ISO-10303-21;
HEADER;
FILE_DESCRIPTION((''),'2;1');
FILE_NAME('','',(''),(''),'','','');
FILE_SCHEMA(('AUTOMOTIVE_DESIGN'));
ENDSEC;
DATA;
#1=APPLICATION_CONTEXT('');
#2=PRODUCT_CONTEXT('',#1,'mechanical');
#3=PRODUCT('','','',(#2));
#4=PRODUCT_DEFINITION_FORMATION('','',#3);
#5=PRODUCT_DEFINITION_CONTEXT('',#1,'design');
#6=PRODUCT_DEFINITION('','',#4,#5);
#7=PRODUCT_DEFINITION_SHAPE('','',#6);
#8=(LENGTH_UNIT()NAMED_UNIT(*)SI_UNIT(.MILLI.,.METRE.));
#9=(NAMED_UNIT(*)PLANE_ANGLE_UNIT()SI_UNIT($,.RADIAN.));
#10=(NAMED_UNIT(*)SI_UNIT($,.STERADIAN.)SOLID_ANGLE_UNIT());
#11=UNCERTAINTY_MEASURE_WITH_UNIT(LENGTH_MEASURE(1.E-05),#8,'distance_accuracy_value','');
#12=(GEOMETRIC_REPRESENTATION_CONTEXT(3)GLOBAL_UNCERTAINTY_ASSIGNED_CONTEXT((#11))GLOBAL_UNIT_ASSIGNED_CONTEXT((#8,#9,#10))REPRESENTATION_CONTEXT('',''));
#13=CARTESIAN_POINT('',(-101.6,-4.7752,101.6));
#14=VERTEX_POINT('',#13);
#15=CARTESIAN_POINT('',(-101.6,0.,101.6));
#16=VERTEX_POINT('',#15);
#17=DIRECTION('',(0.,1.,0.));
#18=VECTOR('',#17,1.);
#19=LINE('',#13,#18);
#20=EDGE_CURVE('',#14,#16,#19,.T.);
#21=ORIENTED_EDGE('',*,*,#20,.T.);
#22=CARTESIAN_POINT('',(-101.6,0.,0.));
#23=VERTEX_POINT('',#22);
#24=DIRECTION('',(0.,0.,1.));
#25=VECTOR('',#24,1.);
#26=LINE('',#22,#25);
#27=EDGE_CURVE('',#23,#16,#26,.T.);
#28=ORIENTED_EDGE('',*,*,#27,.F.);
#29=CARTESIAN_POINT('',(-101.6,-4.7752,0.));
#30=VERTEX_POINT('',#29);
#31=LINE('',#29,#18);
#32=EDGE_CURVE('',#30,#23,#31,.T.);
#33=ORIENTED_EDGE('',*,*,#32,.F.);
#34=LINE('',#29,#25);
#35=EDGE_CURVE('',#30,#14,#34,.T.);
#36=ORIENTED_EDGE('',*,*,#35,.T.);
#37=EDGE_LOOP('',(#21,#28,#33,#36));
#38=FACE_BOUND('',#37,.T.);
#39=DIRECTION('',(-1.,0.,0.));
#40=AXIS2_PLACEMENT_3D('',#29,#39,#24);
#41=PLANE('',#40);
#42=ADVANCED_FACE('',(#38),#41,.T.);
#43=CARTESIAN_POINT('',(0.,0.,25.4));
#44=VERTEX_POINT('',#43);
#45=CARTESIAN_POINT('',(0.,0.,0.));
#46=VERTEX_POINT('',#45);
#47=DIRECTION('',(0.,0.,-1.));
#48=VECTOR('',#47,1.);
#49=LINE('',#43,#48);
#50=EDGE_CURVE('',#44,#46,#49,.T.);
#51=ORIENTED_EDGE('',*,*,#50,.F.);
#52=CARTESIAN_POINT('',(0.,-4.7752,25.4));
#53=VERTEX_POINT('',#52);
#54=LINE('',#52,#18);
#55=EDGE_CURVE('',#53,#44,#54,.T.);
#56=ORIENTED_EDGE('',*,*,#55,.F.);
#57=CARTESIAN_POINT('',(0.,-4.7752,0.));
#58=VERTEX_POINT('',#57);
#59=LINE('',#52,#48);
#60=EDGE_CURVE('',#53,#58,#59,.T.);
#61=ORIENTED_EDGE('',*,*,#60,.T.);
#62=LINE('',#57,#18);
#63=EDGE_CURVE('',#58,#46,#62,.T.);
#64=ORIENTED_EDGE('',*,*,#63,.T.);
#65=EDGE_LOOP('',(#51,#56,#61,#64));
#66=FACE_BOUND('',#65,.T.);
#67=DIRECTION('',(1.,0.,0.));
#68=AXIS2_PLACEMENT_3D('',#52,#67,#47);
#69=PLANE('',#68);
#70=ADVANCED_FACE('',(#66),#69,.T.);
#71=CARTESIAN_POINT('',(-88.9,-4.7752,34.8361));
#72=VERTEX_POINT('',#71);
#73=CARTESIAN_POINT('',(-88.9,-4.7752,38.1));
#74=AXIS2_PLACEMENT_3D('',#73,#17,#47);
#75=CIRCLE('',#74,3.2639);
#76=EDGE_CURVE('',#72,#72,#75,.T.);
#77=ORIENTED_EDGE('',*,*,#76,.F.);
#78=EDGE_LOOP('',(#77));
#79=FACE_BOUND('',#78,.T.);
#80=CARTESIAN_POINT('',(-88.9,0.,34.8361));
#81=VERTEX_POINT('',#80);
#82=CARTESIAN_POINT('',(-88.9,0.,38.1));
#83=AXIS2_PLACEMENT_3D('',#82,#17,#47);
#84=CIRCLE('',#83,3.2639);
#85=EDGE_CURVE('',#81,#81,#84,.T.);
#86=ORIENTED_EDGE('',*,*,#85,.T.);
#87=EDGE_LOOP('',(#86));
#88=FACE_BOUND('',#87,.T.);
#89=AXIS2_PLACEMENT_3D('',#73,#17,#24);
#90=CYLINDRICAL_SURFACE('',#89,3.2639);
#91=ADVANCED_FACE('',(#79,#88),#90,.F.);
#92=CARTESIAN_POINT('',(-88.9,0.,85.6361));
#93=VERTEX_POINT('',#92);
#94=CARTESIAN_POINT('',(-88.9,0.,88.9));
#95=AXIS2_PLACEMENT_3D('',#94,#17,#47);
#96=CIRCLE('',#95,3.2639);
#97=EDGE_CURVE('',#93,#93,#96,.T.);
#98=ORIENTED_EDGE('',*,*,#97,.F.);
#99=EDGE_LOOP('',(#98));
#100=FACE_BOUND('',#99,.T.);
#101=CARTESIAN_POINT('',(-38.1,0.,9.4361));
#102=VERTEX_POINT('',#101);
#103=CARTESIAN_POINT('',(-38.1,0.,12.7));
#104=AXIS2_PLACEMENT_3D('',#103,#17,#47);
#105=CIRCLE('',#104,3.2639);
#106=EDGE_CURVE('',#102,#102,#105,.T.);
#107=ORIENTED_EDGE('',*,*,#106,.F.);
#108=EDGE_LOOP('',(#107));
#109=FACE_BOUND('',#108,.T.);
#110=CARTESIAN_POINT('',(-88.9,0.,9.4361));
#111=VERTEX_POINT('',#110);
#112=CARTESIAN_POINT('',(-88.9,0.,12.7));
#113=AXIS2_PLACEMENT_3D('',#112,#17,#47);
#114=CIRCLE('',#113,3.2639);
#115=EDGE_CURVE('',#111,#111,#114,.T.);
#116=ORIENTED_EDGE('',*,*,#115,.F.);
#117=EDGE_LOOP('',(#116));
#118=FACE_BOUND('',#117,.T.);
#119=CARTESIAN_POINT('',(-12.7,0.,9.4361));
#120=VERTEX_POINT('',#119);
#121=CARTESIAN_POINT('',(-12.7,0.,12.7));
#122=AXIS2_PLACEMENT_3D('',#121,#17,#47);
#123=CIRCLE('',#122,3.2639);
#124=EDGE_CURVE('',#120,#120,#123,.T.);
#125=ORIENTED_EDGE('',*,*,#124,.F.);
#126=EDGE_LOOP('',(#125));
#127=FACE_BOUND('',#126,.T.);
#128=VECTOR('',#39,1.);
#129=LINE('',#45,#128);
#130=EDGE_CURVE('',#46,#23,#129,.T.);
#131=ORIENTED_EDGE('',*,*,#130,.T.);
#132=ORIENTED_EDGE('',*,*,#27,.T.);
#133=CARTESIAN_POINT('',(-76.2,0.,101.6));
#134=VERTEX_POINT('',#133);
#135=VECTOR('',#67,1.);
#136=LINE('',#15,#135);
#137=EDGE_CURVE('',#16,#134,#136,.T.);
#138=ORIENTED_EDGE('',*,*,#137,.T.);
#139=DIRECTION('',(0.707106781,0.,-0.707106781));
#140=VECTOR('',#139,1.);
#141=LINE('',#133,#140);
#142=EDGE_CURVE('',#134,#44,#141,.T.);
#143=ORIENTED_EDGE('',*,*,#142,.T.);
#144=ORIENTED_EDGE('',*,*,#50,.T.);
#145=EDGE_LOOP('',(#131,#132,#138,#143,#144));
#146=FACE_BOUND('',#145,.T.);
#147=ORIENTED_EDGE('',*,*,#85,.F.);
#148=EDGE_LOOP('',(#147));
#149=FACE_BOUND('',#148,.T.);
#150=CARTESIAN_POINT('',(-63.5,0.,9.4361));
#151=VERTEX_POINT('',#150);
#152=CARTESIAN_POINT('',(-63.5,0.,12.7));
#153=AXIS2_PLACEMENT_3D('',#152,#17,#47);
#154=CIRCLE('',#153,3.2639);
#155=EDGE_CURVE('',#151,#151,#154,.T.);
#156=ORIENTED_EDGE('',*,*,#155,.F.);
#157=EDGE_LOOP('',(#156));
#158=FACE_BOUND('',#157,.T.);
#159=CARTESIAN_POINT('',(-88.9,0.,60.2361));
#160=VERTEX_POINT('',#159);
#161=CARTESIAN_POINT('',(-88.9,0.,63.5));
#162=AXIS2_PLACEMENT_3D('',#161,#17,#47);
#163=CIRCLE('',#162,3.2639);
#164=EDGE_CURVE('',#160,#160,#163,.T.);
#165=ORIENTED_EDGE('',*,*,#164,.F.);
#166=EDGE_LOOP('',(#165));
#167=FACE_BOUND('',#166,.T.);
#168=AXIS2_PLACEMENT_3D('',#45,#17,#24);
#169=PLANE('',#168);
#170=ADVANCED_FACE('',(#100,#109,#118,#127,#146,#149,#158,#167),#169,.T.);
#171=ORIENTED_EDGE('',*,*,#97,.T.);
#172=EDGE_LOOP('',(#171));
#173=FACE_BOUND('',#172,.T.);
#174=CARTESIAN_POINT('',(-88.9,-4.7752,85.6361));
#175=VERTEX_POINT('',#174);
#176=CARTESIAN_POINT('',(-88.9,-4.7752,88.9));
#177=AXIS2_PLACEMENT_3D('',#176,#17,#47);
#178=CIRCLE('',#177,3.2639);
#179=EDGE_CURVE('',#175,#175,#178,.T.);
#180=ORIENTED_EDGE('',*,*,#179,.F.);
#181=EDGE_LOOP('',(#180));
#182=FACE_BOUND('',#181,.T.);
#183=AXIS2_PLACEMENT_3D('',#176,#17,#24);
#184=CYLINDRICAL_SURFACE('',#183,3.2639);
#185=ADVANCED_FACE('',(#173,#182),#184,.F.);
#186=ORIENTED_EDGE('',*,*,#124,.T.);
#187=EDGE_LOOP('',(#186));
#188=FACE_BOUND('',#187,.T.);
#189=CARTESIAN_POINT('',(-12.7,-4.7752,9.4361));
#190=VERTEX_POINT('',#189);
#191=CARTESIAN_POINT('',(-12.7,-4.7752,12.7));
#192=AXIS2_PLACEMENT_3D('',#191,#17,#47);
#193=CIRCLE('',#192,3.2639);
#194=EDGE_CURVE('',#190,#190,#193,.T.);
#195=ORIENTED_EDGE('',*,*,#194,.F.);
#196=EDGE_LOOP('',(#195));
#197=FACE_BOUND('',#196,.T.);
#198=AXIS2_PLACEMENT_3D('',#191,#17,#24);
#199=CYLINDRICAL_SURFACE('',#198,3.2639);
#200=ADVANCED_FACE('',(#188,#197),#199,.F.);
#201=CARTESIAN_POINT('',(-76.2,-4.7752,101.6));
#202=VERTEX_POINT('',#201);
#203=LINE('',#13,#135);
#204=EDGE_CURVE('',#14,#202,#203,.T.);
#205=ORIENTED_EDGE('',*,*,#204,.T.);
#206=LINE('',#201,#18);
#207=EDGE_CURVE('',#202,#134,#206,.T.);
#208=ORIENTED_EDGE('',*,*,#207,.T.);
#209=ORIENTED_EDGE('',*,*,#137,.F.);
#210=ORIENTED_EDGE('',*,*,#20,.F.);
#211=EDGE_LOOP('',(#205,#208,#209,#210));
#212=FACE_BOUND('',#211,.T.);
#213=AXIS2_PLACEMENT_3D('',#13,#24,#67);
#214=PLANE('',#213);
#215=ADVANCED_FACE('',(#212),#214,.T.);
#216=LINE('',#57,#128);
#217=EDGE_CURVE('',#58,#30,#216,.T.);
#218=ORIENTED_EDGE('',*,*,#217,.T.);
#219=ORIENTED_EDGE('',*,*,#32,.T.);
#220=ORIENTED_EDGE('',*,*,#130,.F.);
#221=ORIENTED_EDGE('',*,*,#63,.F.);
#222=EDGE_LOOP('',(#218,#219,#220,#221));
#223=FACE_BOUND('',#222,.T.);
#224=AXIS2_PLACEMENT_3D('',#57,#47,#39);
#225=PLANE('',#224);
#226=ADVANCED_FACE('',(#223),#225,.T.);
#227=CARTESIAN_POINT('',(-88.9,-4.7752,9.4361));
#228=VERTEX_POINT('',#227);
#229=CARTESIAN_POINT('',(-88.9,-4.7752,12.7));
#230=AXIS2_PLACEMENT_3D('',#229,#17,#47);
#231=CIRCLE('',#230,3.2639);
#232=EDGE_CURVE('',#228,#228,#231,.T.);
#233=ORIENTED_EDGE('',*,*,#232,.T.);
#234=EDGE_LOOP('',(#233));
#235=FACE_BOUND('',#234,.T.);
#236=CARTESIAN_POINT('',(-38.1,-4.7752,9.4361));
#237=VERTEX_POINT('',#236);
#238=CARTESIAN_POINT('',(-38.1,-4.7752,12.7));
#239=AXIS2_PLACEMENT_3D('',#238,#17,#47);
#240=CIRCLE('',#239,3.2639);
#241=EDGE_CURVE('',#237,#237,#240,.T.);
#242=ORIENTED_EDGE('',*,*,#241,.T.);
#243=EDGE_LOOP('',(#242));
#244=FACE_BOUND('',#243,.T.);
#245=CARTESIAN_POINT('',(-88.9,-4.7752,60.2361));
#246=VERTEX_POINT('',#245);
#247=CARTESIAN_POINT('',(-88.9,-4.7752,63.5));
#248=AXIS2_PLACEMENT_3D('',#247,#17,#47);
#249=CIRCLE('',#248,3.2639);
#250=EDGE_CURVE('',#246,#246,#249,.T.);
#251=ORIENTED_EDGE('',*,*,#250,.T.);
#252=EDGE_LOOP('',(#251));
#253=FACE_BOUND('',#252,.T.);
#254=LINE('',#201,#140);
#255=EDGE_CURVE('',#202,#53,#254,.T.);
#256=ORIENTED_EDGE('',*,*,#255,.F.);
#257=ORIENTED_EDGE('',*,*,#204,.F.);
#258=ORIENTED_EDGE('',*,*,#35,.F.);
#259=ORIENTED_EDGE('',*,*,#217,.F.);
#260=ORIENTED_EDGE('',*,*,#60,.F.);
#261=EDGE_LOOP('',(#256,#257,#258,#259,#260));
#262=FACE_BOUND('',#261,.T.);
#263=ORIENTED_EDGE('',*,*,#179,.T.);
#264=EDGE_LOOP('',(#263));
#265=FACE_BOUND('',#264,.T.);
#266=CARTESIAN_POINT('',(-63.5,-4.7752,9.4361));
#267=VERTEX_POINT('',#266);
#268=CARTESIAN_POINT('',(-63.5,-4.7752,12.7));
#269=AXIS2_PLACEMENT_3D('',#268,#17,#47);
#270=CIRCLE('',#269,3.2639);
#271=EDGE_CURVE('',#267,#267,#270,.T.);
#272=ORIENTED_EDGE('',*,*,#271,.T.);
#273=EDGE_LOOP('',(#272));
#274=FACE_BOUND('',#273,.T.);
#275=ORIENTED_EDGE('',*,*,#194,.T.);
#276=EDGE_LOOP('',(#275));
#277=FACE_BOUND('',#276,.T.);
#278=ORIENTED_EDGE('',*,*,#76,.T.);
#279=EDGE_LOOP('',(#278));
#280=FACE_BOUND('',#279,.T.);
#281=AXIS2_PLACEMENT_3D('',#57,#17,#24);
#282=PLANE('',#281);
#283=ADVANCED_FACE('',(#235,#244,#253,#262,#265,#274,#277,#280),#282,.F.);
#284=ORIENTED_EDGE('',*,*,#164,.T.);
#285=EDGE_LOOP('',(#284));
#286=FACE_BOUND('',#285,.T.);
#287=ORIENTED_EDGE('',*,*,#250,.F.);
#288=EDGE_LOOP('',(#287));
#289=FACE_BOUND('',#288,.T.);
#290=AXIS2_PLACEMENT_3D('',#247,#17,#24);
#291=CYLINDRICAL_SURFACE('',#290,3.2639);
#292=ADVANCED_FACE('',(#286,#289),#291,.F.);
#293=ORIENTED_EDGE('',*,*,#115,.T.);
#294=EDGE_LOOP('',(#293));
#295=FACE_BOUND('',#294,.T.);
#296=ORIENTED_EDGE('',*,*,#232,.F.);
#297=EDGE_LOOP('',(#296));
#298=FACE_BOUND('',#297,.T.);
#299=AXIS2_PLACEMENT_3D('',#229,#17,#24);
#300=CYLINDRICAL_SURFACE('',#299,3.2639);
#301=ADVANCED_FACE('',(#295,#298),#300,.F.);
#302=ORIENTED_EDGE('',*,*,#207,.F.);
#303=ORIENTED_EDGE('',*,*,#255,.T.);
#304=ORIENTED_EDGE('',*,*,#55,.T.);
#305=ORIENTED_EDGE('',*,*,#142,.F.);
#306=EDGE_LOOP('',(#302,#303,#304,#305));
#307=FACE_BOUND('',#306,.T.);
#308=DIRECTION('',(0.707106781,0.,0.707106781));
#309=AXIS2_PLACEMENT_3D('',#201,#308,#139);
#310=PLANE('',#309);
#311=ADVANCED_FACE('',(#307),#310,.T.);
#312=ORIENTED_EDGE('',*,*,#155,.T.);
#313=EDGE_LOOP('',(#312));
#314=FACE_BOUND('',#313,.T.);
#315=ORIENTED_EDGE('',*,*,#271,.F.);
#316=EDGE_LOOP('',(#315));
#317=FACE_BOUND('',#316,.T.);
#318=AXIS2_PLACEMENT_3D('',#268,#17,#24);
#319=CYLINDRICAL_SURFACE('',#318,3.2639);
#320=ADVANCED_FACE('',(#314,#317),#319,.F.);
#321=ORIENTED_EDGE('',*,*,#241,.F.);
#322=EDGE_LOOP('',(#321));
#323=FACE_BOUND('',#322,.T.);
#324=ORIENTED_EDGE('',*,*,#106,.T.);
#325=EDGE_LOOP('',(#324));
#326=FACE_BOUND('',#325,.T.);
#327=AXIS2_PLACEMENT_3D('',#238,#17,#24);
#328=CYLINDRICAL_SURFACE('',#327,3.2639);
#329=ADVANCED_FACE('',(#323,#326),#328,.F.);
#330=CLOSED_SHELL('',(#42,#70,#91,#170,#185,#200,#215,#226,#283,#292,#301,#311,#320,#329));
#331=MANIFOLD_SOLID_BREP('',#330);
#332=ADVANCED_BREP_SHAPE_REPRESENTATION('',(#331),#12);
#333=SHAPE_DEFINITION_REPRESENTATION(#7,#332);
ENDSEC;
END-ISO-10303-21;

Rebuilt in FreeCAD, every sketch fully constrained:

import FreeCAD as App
import Part
import Sketcher
Q = App.Units.Quantity

doc = App.newDocument("Part")
body = doc.addObject("PartDesign::Body", "Body")

# Sketch on XZ plane
sketch1 = doc.addObject("Sketcher::SketchObject", "Sketch")
body.addObject(sketch1)
sketch1.AttachmentSupport = (doc.XZ_Plane, [""])
sketch1.MapMode = "FlatFace"
sketch1.addGeometry(Part.LineSegment(App.Vector(0, 0, 0), App.Vector(-101.6, 0, 0)), False)
sketch1.addGeometry(Part.LineSegment(App.Vector(-101.6, 0, 0), App.Vector(-101.6, 101.6, 0)), False)
sketch1.addGeometry(Part.LineSegment(App.Vector(-101.6, 101.6, 0), App.Vector(-76.2, 101.6, 0)), False)
sketch1.addGeometry(Part.LineSegment(App.Vector(-76.2, 101.6, 0), App.Vector(0, 25.4, 0)), False)
sketch1.addGeometry(Part.LineSegment(App.Vector(0, 25.4, 0), App.Vector(0, 0, 0)), False)
sketch1.addGeometry(Part.Circle(App.Vector(-88.9, 88.9, 0), App.Vector(0, 0, 1), 3.3), False)
sketch1.addGeometry(Part.Circle(App.Vector(-88.9, 63.5, 0), App.Vector(0, 0, 1), 3.3), False)
sketch1.addGeometry(Part.Circle(App.Vector(-88.9, 38.1, 0), App.Vector(0, 0, 1), 3.3), False)
sketch1.addGeometry(Part.Circle(App.Vector(-88.9, 12.7, 0), App.Vector(0, 0, 1), 3.3), False)
sketch1.addGeometry(Part.Circle(App.Vector(-63.5, 12.7, 0), App.Vector(0, 0, 1), 3.3), False)
sketch1.addGeometry(Part.Circle(App.Vector(-38.1, 12.7, 0), App.Vector(0, 0, 1), 3.3), False)
sketch1.addGeometry(Part.Circle(App.Vector(-12.7, 12.7, 0), App.Vector(0, 0, 1), 3.3), False)
sketch1.addConstraint(Sketcher.Constraint("Coincident", 0, 2, 1, 1))
sketch1.addConstraint(Sketcher.Constraint("Coincident", 1, 2, 2, 1))
sketch1.addConstraint(Sketcher.Constraint("Coincident", 2, 2, 3, 1))
sketch1.addConstraint(Sketcher.Constraint("Coincident", 3, 2, 4, 1))
sketch1.addConstraint(Sketcher.Constraint("Coincident", 4, 2, 0, 1))
sketch1.addConstraint(Sketcher.Constraint("Horizontal", 0))
sketch1.addConstraint(Sketcher.Constraint("Vertical", 1))
sketch1.addConstraint(Sketcher.Constraint("Horizontal", 2))
sketch1.addConstraint(Sketcher.Constraint("Vertical", 4))
sketch1.addConstraint(Sketcher.Constraint("Coincident", 4, 2, -1, 1))
sketch1.addConstraint(Sketcher.Constraint("Equal", 5, 6))
sketch1.addConstraint(Sketcher.Constraint("Equal", 6, 7))
sketch1.addConstraint(Sketcher.Constraint("Equal", 7, 8))
sketch1.addConstraint(Sketcher.Constraint("Equal", 8, 9))
sketch1.addConstraint(Sketcher.Constraint("Equal", 9, 10))
sketch1.addConstraint(Sketcher.Constraint("Equal", 10, 11))
sketch1.addConstraint(Sketcher.Constraint("Horizontal", 8, 3, 9, 3))
sketch1.addConstraint(Sketcher.Constraint("Horizontal", 9, 3, 10, 3))
sketch1.addConstraint(Sketcher.Constraint("Horizontal", 10, 3, 11, 3))
sketch1.addConstraint(Sketcher.Constraint("Vertical", 5, 3, 6, 3))
sketch1.addConstraint(Sketcher.Constraint("Vertical", 6, 3, 7, 3))
sketch1.addConstraint(Sketcher.Constraint("Vertical", 7, 3, 8, 3))
sketch1.addConstraint(Sketcher.Constraint("Equal", 0, 1))
sketch1.addConstraint(Sketcher.Constraint("Equal", 2, 4))
sketch1.addConstraint(Sketcher.Constraint("DistanceX", 0, 2, 0, 1, Q("4 in")))
sketch1.addConstraint(Sketcher.Constraint("DistanceX", 2, 1, 2, 2, Q("1 in")))
sketch1.addConstraint(Sketcher.Constraint("Diameter", 5, Q("0.257 in")))
sketch1.addConstraint(Sketcher.Constraint("DistanceY", 6, 3, 5, 3, Q("1 in")))
sketch1.addConstraint(Sketcher.Constraint("DistanceY", 7, 3, 6, 3, Q("1 in")))
sketch1.addConstraint(Sketcher.Constraint("DistanceY", 8, 3, 7, 3, Q("1 in")))
sketch1.addConstraint(Sketcher.Constraint("DistanceX", 8, 3, 9, 3, Q("1 in")))
sketch1.addConstraint(Sketcher.Constraint("DistanceX", 9, 3, 10, 3, Q("1 in")))
sketch1.addConstraint(Sketcher.Constraint("DistanceX", 10, 3, 11, 3, Q("1 in")))
sketch1.addConstraint(Sketcher.Constraint("DistanceX", 5, 3, -1, 1, Q("3.5 in")))
sketch1.addConstraint(Sketcher.Constraint("DistanceY", -1, 1, 5, 3, Q("3.5 in")))
pad1 = doc.addObject("PartDesign::Pad", "Pad")
body.addObject(pad1)
pad1.Profile = sketch1
pad1.Length = Q("0.188 in")

doc.recompute()
